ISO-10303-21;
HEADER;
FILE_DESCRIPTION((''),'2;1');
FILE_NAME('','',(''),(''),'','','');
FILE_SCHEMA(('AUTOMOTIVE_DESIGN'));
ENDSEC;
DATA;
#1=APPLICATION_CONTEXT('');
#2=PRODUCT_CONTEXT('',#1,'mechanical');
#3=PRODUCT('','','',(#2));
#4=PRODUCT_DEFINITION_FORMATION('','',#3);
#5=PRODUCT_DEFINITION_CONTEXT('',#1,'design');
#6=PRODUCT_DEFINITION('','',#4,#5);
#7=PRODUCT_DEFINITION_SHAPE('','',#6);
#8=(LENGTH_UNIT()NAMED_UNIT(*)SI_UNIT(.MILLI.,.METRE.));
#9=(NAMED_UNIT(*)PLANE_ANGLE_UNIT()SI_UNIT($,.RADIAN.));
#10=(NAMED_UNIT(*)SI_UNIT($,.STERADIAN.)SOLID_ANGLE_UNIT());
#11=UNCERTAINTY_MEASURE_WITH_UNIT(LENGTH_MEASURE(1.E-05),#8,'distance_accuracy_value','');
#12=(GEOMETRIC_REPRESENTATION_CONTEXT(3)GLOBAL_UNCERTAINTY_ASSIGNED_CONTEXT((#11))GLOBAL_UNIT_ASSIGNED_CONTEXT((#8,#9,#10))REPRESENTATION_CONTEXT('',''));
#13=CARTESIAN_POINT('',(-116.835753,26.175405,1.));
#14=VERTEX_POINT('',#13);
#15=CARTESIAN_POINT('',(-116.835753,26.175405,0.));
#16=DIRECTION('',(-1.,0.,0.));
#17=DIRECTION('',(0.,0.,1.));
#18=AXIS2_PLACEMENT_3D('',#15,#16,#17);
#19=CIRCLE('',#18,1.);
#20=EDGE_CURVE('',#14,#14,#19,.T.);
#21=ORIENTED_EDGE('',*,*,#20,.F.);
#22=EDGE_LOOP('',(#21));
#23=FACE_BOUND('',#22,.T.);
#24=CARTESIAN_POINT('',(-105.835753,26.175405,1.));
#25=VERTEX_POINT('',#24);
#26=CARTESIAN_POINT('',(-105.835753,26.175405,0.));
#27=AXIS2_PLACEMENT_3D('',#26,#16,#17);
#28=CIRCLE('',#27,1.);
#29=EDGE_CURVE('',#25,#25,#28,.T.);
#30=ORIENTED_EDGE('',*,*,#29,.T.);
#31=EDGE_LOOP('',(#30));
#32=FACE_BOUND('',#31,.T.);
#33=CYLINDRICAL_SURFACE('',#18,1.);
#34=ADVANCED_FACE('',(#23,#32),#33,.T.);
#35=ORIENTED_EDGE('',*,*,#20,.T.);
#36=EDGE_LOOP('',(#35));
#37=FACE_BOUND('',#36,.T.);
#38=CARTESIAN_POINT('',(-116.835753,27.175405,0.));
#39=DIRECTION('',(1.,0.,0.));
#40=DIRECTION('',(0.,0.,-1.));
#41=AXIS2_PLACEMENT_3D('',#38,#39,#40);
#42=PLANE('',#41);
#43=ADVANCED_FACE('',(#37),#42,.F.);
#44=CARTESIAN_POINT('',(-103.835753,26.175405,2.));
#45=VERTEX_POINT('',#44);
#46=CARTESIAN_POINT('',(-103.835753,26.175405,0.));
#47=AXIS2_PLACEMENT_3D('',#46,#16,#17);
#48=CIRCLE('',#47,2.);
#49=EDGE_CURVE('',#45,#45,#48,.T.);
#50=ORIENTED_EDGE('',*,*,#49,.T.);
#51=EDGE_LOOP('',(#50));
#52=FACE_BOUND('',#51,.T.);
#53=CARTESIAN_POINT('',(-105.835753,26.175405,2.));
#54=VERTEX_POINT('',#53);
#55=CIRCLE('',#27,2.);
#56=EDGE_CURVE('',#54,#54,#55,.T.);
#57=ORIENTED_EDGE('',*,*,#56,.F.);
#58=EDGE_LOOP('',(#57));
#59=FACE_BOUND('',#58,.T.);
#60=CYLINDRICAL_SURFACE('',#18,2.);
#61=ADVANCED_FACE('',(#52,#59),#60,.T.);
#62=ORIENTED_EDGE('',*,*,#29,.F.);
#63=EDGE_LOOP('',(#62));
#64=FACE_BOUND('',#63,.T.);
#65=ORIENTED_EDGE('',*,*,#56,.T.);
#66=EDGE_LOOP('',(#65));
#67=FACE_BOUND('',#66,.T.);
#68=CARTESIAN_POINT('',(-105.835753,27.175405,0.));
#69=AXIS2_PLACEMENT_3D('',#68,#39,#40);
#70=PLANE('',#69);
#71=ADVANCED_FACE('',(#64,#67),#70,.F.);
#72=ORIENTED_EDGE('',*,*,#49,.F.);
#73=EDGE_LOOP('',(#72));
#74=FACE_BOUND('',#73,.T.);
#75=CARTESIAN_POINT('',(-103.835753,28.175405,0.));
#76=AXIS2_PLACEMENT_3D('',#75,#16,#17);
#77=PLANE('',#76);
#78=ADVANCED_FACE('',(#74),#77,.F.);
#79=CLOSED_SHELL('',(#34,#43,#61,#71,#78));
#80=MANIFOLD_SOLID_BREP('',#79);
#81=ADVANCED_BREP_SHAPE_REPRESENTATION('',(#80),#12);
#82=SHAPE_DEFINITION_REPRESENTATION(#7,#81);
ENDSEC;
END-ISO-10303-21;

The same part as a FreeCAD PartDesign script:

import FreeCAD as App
import Part
import Sketcher
from FreeCAD import Vector
Q = App.Units.Quantity


def add_polygon(sketch, points):
    """Adds a closed chain of lines whose ends are joined by coincident constraints."""
    first, n = sketch.GeometryCount, len(points)
    for a, b in zip(points, points[1:] + points[:1]):
        sketch.addGeometry(Part.LineSegment(App.Vector(*a, 0), App.Vector(*b, 0)), False)
    for i in range(n):
        sketch.addConstraint(Sketcher.Constraint("Coincident", first + i, 2, first + (i + 1) % n, 1))

doc = App.newDocument("Part")
body = doc.addObject("PartDesign::Body", "Body")

# Sketch on XY plane
sketch1 = body.newObject("Sketcher::SketchObject", "Sketch")
sketch1.AttachmentSupport = (doc.getObject("XY_Plane"), [""])
sketch1.MapMode = "FlatFace"
add_polygon(sketch1, [(-105.8, 27.2), (-116.8, 27.2), (-116.8, 26.2), (-103.8, 26.2), (-103.8, 28.2), (-105.8, 28.2)])  # lines 0-5
sketch1.addGeometry(Part.LineSegment(Vector(-116.8, 26.2, 0), Vector(-103.8, 26.2, 0)), True)  # axis
sketch1.addConstraint([
    Sketcher.Constraint("Horizontal", 0),
    Sketcher.Constraint("Vertical", 1),
    Sketcher.Constraint("Horizontal", 2),
    Sketcher.Constraint("Vertical", 3),
    Sketcher.Constraint("Horizontal", 4),
    Sketcher.Constraint("Vertical", 5),
    Sketcher.Constraint("Horizontal", 6),
    Sketcher.Constraint("Coincident", 6, 1, 1, 2),
    Sketcher.Constraint("Vertical", 3, 2, 6, 2),
    Sketcher.Constraint("Equal", 4, 3),
    Sketcher.Constraint("Equal", 1, 5),
    Sketcher.Constraint("DistanceX", 0, 2, 0, 1, Q("11 mm")),
    Sketcher.Constraint("DistanceX", 2, 1, 2, 2, Q("13 mm")),
    Sketcher.Constraint("DistanceX", 0, 2, -1, 1, Q("116.835753 mm")),
    Sketcher.Constraint("DistanceY", -1, 1, 0, 2, Q("27.175405 mm")),
])
revolution = body.newObject("PartDesign::Revolution", "Revolution")
revolution.Profile = sketch1
revolution.ReferenceAxis = (sketch1, ["Axis0"])
revolution.Angle = 360

doc.recompute()
